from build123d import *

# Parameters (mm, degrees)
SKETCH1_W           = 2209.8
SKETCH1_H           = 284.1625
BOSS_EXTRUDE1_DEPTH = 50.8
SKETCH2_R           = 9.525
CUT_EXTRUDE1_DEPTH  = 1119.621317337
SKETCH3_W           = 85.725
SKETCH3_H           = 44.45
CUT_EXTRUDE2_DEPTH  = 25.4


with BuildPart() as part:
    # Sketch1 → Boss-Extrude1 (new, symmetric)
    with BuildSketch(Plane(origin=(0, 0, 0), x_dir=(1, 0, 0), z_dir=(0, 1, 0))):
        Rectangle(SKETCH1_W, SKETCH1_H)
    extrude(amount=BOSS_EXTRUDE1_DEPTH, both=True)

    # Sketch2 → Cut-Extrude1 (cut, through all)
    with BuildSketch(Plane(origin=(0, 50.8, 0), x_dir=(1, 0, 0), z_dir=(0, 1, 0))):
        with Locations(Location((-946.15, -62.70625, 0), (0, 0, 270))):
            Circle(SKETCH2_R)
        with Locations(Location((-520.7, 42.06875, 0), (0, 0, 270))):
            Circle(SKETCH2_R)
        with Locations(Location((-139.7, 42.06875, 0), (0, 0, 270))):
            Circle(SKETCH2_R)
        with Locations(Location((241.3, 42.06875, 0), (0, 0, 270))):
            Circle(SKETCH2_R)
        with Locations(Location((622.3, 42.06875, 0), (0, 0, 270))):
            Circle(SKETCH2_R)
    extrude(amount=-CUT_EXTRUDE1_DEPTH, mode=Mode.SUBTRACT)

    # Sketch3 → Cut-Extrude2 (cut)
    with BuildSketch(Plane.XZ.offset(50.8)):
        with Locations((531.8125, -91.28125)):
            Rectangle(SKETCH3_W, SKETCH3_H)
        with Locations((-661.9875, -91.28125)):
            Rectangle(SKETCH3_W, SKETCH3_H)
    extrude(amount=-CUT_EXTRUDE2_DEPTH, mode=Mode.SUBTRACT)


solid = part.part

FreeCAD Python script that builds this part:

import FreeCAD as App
import Part
import Sketcher
Q = App.Units.Quantity

doc = App.newDocument("Part")
body = doc.addObject("PartDesign::Body", "Body")

# Sketch on XZ plane
sketch1 = body.newObject("Sketcher::SketchObject", "Sketch")
sketch1.AttachmentSupport = (doc.getObject("XZ_Plane"), [""])
sketch1.MapMode = "FlatFace"
sketch1.addGeometry([
    Part.LineSegment(App.Vector(-1104.9, -142.08125, 0), App.Vector(-1104.9, 142.08125, 0)),
    Part.LineSegment(App.Vector(-1104.9, 142.08125, 0), App.Vector(1104.9, 142.08125, 0)),
    Part.LineSegment(App.Vector(1104.9, 142.08125, 0), App.Vector(1104.9, -142.08125, 0)),
    Part.LineSegment(App.Vector(1104.9, -142.08125, 0), App.Vector(-1104.9, -142.08125, 0)),
], False)
sketch1.addConstraint([
    Sketcher.Constraint("Coincident", 0, 2, 1, 1),
    Sketcher.Constraint("Coincident", 1, 2, 2, 1),
    Sketcher.Constraint("Coincident", 2, 2, 3, 1),
    Sketcher.Constraint("Coincident", 3, 2, 0, 1),
    Sketcher.Constraint("Vertical", 0),
    Sketcher.Constraint("Horizontal", 1),
    Sketcher.Constraint("Vertical", 2),
    Sketcher.Constraint("Horizontal", 3),
    Sketcher.Constraint("Symmetric", 0, 2, 2, 2, -1, 1),
    Sketcher.Constraint("DistanceX", 1, 1, 1, 2, Q("87 in")),
    Sketcher.Constraint("DistanceY", 0, 1, 0, 2, Q("11.1875 in")),
])
pad1 = body.newObject("PartDesign::Pad", "Pad")
pad1.Profile = sketch1
pad1.Length = Q("4 in")
pad1.Midplane = True

# Sketch on XZ plane
sketch2 = body.newObject("Sketcher::SketchObject", "Sketch001")
sketch2.AttachmentSupport = (doc.getObject("XZ_Plane"), [""])
sketch2.MapMode = "FlatFace"
sketch2.AttachmentOffset = App.Placement(App.Vector(0, 0, -2 * 25.4), App.Rotation())
sketch2.addGeometry([
    Part.Circle(App.Vector(-946.15, 62.70625, 0), App.Vector(0, 0, 1), 9.525),  # 0
    Part.Circle(App.Vector(-520.7, -42.06875, 0), App.Vector(0, 0, 1), 9.525),  # 1
    Part.Circle(App.Vector(-139.7, -42.06875, 0), App.Vector(0, 0, 1), 9.525),  # 2
    Part.Circle(App.Vector(241.3, -42.06875, 0), App.Vector(0, 0, 1), 9.525),  # 3
    Part.Circle(App.Vector(622.3, -42.06875, 0), App.Vector(0, 0, 1), 9.525),  # 4
], False)
sketch2.addConstraint([
    Sketcher.Constraint("Equal", 0, 1),
    Sketcher.Constraint("Equal", 1, 2),
    Sketcher.Constraint("Equal", 2, 3),
    Sketcher.Constraint("Equal", 3, 4),
    Sketcher.Constraint("Horizontal", 1, 3, 2, 3),
    Sketcher.Constraint("Horizontal", 2, 3, 3, 3),
    Sketcher.Constraint("Horizontal", 3, 3, 4, 3),
    Sketcher.Constraint("Diameter", 0, Q("0.75 in")),
    Sketcher.Constraint("DistanceX", 1, 3, 2, 3, Q("15 in")),
    Sketcher.Constraint("DistanceX", 2, 3, 3, 3, Q("15 in")),
    Sketcher.Constraint("DistanceX", 3, 3, 4, 3, Q("15 in")),
    Sketcher.Constraint("DistanceX", 1, 3, -1, 1, Q("20.5 in")),
    Sketcher.Constraint("DistanceX", 0, 3, -1, 1, Q("37.25 in")),
    Sketcher.Constraint("DistanceY", -1, 1, 0, 3, Q("2.46875 in")),
    Sketcher.Constraint("DistanceY", 1, 3, -1, 1, Q("1.65625 in")),
])
pocket1 = body.newObject("PartDesign::Pocket", "Pocket")
pocket1.Profile = sketch2
pocket1.Type = "ThroughAll"
pocket1.Reversed = True

# Sketch on XZ plane
sketch3 = body.newObject("Sketcher::SketchObject", "Sketch002")
sketch3.AttachmentSupport = (doc.getObject("XZ_Plane"), [""])
sketch3.MapMode = "FlatFace"
sketch3.AttachmentOffset = App.Placement(App.Vector(0, 0, 2 * 25.4), App.Rotation())
sketch3.addGeometry([
    Part.LineSegment(App.Vector(488.95, -69.05625, 0), App.Vector(488.95, -113.50625, 0)),  # 0
    Part.LineSegment(App.Vector(488.95, -113.50625, 0), App.Vector(574.675, -113.50625, 0)),  # 1
    Part.LineSegment(App.Vector(574.675, -113.50625, 0), App.Vector(574.675, -69.05625, 0)),  # 2
    Part.LineSegment(App.Vector(574.675, -69.05625, 0), App.Vector(488.95, -69.05625, 0)),  # 3
    Part.LineSegment(App.Vector(-704.85, -69.05625, 0), App.Vector(-704.85, -113.50625, 0)),  # 4
    Part.LineSegment(App.Vector(-704.85, -113.50625, 0), App.Vector(-619.125, -113.50625, 0)),  # 5
    Part.LineSegment(App.Vector(-619.125, -113.50625, 0), App.Vector(-619.125, -69.05625, 0)),  # 6
    Part.LineSegment(App.Vector(-619.125, -69.05625, 0), App.Vector(-704.85, -69.05625, 0)),  # 7
], False)
sketch3.addConstraint([
    Sketcher.Constraint("Coincident", 0, 2, 1, 1),
    Sketcher.Constraint("Coincident", 1, 2, 2, 1),
    Sketcher.Constraint("Coincident", 2, 2, 3, 1),
    Sketcher.Constraint("Coincident", 3, 2, 0, 1),
    Sketcher.Constraint("Coincident", 4, 2, 5, 1),
    Sketcher.Constraint("Coincident", 5, 2, 6, 1),
    Sketcher.Constraint("Coincident", 6, 2, 7, 1),
    Sketcher.Constraint("Coincident", 7, 2, 4, 1),
    Sketcher.Constraint("Vertical", 0),
    Sketcher.Constraint("Horizontal", 1),
    Sketcher.Constraint("Vertical", 2),
    Sketcher.Constraint("Horizontal", 3),
    Sketcher.Constraint("Vertical", 4),
    Sketcher.Constraint("Horizontal", 5),
    Sketcher.Constraint("Vertical", 6),
    Sketcher.Constraint("Horizontal", 7),
    Sketcher.Constraint("Horizontal", 1, 2, 4, 2),
    Sketcher.Constraint("Horizontal", 3, 2, 6, 2),
    Sketcher.Constraint("Equal", 3, 5),
    Sketcher.Constraint("DistanceX", 4, 2, 0, 2, Q("47 in")),
    Sketcher.Constraint("DistanceY", 0, 2, 0, 1, Q("1.75 in")),
    Sketcher.Constraint("DistanceX", 1, 1, 1, 2, Q("3.375 in")),
    Sketcher.Constraint("DistanceX", -1, 1, 0, 2, Q("19.25 in")),
    Sketcher.Constraint("DistanceY", 0, 2, -1, 1, Q("4.46875 in")),
])
pocket2 = body.newObject("PartDesign::Pocket", "Pocket001")
pocket2.Profile = sketch3
pocket2.Length = Q("1 in")

doc.recompute()
